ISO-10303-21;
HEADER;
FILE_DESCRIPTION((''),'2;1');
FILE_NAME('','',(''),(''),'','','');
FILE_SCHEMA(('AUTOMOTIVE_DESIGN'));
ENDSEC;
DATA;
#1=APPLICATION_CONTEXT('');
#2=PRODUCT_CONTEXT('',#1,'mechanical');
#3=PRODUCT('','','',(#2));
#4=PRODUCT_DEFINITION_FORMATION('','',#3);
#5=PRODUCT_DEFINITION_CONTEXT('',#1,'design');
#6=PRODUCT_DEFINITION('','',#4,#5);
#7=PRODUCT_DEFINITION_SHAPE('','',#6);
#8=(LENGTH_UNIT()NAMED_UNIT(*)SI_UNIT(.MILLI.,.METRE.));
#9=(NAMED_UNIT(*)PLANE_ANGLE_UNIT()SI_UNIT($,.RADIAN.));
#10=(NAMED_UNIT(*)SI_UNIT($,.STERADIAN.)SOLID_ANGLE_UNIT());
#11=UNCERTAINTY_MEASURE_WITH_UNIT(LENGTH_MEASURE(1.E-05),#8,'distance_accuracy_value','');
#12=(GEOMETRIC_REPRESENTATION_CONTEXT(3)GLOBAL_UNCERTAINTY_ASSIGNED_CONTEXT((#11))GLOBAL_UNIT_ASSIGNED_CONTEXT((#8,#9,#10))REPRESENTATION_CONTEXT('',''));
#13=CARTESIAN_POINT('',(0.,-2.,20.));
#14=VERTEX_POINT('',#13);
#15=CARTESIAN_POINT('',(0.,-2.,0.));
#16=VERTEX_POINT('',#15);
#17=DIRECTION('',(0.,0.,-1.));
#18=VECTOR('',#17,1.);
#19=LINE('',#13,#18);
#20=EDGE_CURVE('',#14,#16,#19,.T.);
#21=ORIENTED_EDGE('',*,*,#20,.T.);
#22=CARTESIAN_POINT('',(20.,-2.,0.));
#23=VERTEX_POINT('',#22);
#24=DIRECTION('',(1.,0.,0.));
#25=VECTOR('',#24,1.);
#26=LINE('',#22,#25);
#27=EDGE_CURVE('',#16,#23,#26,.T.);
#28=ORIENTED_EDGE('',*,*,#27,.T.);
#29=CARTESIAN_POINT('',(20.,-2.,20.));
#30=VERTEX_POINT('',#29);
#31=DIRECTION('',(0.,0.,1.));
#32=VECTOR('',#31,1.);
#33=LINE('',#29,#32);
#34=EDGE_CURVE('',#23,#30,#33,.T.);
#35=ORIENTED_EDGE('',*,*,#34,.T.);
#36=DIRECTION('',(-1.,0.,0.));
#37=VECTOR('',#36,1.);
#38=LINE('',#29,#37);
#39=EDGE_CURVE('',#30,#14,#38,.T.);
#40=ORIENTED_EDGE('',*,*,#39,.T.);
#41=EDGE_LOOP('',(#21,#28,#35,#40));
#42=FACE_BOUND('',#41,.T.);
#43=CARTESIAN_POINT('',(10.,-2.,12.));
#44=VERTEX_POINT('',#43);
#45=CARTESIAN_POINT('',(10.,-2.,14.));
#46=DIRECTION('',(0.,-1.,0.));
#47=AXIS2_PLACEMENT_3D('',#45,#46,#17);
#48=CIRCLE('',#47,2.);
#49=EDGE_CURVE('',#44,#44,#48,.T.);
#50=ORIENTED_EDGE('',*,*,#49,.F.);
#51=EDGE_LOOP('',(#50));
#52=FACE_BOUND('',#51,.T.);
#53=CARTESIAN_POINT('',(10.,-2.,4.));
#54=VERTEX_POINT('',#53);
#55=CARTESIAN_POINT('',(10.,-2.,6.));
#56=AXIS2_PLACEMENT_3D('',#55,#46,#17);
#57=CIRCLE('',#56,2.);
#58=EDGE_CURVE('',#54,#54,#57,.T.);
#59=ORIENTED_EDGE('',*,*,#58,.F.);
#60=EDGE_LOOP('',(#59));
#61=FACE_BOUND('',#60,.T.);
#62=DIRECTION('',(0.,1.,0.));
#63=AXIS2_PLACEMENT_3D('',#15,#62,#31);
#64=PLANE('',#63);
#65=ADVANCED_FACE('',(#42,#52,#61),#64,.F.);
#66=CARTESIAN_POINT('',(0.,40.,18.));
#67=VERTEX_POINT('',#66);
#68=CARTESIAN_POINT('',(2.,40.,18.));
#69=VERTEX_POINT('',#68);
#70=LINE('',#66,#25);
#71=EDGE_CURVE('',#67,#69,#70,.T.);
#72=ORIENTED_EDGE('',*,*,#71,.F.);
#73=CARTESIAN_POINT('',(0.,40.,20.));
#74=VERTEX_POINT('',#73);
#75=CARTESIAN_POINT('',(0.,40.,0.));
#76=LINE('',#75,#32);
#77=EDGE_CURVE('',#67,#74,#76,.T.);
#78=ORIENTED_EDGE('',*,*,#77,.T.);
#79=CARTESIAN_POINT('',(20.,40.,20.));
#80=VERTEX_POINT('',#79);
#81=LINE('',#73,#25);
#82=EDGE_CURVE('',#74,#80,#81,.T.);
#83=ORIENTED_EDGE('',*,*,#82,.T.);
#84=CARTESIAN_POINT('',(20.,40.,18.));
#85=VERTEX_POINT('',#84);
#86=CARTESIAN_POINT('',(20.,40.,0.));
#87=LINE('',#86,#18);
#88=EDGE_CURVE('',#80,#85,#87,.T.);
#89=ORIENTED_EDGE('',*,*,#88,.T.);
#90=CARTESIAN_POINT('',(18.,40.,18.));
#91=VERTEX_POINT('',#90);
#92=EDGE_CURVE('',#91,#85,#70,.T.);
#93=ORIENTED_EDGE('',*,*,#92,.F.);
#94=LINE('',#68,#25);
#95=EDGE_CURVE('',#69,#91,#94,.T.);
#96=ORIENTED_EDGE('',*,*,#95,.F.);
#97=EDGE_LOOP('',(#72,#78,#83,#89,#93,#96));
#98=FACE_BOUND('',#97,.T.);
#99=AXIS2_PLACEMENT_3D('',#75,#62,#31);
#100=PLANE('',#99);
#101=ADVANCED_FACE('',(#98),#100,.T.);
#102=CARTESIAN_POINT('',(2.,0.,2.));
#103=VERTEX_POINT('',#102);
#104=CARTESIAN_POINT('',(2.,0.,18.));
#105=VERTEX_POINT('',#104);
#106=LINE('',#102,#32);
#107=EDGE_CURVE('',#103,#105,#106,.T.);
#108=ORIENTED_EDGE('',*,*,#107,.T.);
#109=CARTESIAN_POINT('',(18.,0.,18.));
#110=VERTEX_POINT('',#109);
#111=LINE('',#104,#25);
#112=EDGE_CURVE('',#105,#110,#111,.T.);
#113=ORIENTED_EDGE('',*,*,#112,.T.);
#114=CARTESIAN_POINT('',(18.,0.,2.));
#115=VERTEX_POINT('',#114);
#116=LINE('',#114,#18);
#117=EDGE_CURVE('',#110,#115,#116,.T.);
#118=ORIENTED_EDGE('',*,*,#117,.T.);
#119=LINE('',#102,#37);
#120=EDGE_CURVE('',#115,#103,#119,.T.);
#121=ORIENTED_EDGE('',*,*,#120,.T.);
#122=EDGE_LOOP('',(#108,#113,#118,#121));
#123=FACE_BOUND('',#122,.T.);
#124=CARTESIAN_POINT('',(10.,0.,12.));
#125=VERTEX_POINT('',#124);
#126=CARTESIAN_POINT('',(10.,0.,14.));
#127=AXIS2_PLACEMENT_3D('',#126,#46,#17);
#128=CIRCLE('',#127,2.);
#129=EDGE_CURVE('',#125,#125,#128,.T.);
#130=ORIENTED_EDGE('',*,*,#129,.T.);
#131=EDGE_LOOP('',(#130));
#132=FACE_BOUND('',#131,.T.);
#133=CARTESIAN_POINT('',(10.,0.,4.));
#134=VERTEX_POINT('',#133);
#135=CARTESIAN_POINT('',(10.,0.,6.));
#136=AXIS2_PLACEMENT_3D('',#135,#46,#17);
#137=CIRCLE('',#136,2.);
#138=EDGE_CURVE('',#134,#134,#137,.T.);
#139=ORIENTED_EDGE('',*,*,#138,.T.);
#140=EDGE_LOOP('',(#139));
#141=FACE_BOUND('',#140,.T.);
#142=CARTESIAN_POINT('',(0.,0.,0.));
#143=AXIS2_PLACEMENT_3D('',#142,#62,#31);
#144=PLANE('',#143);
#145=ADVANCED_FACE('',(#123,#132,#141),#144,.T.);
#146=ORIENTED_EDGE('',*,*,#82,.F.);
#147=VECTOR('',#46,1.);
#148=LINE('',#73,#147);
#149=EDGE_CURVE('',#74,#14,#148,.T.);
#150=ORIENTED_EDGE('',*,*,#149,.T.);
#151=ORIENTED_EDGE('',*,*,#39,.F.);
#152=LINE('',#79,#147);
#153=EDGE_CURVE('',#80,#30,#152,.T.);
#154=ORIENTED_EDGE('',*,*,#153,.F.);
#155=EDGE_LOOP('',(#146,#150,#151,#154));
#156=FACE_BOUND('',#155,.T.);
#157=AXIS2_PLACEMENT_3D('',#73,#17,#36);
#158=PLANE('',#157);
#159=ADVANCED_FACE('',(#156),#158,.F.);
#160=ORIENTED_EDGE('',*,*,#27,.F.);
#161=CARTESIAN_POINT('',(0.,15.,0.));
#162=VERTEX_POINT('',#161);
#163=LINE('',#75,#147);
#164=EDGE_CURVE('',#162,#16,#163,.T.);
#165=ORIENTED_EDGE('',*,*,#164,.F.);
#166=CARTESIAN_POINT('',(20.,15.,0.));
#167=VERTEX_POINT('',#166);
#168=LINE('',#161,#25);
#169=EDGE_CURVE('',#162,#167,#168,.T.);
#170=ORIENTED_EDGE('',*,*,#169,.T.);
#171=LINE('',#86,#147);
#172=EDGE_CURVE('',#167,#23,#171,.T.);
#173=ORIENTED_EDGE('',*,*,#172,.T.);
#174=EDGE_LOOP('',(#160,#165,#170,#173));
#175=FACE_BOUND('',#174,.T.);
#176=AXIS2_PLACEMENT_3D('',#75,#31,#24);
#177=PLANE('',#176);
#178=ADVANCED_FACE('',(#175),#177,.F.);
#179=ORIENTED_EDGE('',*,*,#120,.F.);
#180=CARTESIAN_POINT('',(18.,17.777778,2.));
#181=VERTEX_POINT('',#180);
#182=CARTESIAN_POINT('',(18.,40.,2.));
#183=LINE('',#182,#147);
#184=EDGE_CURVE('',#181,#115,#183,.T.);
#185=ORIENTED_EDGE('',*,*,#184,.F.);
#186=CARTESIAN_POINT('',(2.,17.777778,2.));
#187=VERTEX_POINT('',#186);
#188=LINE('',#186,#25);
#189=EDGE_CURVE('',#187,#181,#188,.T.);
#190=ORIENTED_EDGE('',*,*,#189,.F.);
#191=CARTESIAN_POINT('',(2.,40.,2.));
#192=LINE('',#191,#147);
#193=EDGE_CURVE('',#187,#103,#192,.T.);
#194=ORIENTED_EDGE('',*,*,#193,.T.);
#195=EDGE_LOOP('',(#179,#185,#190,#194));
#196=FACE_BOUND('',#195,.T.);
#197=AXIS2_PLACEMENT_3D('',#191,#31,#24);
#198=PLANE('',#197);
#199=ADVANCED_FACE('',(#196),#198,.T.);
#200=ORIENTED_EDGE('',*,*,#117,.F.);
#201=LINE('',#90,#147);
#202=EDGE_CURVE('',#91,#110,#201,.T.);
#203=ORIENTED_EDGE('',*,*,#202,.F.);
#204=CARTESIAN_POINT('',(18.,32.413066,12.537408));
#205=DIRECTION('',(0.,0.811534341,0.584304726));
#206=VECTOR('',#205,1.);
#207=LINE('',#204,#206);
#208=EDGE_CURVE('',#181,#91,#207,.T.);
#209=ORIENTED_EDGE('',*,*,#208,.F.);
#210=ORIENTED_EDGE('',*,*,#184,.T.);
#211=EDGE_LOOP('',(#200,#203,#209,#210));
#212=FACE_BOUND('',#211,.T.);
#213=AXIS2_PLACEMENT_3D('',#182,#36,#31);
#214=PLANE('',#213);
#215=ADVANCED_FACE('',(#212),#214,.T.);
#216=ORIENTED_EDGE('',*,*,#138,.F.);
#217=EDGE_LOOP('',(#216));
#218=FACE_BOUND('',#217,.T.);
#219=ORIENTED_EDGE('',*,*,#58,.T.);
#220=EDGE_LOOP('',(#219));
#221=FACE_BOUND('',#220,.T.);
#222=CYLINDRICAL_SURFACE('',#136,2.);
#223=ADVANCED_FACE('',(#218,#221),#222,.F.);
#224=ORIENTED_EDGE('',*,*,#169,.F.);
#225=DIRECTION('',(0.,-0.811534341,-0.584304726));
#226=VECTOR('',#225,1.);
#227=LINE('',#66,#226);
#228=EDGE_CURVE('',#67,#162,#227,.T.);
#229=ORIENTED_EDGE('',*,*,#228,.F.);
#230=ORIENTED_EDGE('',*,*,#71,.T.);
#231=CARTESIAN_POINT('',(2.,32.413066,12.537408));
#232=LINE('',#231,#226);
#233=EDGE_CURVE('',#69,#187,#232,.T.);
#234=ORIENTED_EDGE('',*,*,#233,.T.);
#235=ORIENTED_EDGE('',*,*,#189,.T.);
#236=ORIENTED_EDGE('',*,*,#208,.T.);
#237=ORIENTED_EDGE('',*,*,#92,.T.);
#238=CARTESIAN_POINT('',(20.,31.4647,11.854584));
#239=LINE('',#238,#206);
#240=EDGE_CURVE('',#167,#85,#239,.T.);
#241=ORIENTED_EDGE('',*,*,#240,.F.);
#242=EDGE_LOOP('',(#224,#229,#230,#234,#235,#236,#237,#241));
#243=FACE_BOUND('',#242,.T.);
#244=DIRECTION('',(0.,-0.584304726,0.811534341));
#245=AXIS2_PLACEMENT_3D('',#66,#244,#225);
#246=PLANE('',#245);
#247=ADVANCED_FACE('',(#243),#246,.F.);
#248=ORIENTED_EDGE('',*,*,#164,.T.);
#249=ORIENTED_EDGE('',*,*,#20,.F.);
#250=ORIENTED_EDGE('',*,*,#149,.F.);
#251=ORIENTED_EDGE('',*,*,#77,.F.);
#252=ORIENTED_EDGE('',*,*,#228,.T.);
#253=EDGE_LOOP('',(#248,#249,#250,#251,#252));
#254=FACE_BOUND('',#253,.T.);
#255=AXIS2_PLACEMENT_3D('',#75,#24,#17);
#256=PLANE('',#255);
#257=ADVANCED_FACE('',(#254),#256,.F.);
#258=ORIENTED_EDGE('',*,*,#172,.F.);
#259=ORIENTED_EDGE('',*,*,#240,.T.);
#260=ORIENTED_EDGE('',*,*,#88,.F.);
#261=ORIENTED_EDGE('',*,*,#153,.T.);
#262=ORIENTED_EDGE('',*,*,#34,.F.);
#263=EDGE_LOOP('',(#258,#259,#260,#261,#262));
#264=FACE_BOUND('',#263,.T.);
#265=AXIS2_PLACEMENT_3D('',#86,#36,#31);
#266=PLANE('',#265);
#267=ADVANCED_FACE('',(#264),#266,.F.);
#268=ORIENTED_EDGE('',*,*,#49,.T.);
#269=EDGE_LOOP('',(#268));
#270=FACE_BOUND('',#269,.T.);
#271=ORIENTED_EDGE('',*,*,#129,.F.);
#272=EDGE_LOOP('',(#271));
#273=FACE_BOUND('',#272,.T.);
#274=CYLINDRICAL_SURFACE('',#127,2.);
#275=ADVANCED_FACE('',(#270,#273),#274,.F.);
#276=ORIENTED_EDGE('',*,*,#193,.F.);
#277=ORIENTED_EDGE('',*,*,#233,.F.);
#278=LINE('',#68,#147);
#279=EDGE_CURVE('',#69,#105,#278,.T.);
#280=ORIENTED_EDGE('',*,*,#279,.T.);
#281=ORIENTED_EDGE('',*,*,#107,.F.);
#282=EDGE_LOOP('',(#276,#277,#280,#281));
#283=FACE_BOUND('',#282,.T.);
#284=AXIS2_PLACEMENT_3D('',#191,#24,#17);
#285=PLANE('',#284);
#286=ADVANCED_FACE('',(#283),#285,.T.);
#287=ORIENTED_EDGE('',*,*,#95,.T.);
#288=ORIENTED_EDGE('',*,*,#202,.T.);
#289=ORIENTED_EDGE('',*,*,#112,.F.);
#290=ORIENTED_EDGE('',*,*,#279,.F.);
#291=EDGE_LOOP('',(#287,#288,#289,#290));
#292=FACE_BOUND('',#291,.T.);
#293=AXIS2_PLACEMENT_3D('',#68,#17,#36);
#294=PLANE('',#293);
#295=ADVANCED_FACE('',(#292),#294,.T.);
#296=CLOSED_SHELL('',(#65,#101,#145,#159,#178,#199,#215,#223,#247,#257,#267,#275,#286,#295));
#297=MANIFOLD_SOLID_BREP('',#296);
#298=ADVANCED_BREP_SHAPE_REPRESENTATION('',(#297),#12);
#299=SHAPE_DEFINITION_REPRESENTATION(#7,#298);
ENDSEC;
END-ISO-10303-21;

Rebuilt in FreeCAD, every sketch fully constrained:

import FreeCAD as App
import Part
import Sketcher

V = App.Vector
Q = App.Units.Quantity

doc = App.newDocument("Part")
body = doc.addObject("PartDesign::Body", "Body")

sketch1 = doc.addObject("Sketcher::SketchObject", "Sketch")
body.addObject(sketch1)
sketch1.AttachmentSupport = (doc.XZ_Plane, [""])
sketch1.MapMode = "FlatFace"
sketch1.addGeometry([
    Part.LineSegment(V(0, 0, 0), V(0, 20, 0)),
    Part.LineSegment(V(0, 20, 0), V(20, 20, 0)),
    Part.LineSegment(V(20, 20, 0), V(20, 0, 0)),
    Part.LineSegment(V(20, 0, 0), V(0, 0, 0)),
    Part.LineSegment(V(18, 18, 0), V(2, 18, 0)),
    Part.LineSegment(V(2, 18, 0), V(2, 2, 0)),
    Part.LineSegment(V(2, 2, 0), V(18, 2, 0)),
    Part.LineSegment(V(18, 2, 0), V(18, 18, 0)),
], False)
sketch1.addConstraint([
    Sketcher.Constraint("Coincident", 0, 2, 1, 1),
    Sketcher.Constraint("Coincident", 1, 2, 2, 1),
    Sketcher.Constraint("Coincident", 2, 2, 3, 1),
    Sketcher.Constraint("Coincident", 3, 2, 0, 1),
    Sketcher.Constraint("Coincident", 4, 2, 5, 1),
    Sketcher.Constraint("Coincident", 5, 2, 6, 1),
    Sketcher.Constraint("Coincident", 6, 2, 7, 1),
    Sketcher.Constraint("Coincident", 7, 2, 4, 1),
    Sketcher.Constraint("Vertical", 0),
    Sketcher.Constraint("Horizontal", 1),
    Sketcher.Constraint("Vertical", 2),
    Sketcher.Constraint("Horizontal", 3),
    Sketcher.Constraint("Horizontal", 4),
    Sketcher.Constraint("Vertical", 5),
    Sketcher.Constraint("Horizontal", 6),
    Sketcher.Constraint("Vertical", 7),
    Sketcher.Constraint("Coincident", 3, 2, -1, 1),
    Sketcher.Constraint("Equal", 3, 0),
    Sketcher.Constraint("Equal", 6, 5),
    Sketcher.Constraint("DistanceX", 1, 1, 1, 2, Q("20 mm")),
    Sketcher.Constraint("DistanceX", 4, 2, 4, 1, Q("16 mm")),
    Sketcher.Constraint("DistanceX", -1, 1, 4, 2, Q("2 mm")),
    Sketcher.Constraint("DistanceY", -1, 1, 4, 2, Q("18 mm")),
])
pad1 = doc.addObject("PartDesign::Pad", "Pad")
body.addObject(pad1)
pad1.Profile = sketch1
pad1.Length = 40
pad1.Reversed = True

sketch2 = doc.addObject("Sketcher::SketchObject", "Sketch001")
body.addObject(sketch2)
sketch2.AttachmentSupport = (doc.YZ_Plane, [""])
sketch2.MapMode = "FlatFace"
sketch2.AttachmentOffset = App.Placement(V(0, 0, 20), App.Rotation())
sketch2.addGeometry([
    Part.LineSegment(V(40, 18, 0), V(15, 0, 0)),
    Part.LineSegment(V(15, 0, 0), V(40, 0, 0)),
    Part.LineSegment(V(40, 0, 0), V(40, 18, 0)),
], False)
sketch2.addConstraint([
    Sketcher.Constraint("Coincident", 0, 2, 1, 1),
    Sketcher.Constraint("Coincident", 1, 2, 2, 1),
    Sketcher.Constraint("Coincident", 2, 2, 0, 1),
    Sketcher.Constraint("Horizontal", 1),
    Sketcher.Constraint("Vertical", 2),
    Sketcher.Constraint("PointOnObject", 0, 2, -1),
    Sketcher.Constraint("DistanceX", 1, 1, 1, 2, Q("25 mm")),
    Sketcher.Constraint("DistanceY", 2, 1, 2, 2, Q("18 mm")),
    Sketcher.Constraint("DistanceX", -1, 1, 0, 2, Q("15 mm")),
])
pocket1 = doc.addObject("PartDesign::Pocket", "Pocket")
body.addObject(pocket1)
pocket1.Profile = sketch2
pocket1.Type = "ThroughAll"
pocket1.Midplane = True

sketch3 = doc.addObject("Sketcher::SketchObject", "Sketch002")
body.addObject(sketch3)
sketch3.AttachmentSupport = (doc.XZ_Plane, [""])
sketch3.MapMode = "FlatFace"
sketch3.addGeometry([
    Part.LineSegment(V(0, 20, 0), V(0, 0, 0)),
    Part.LineSegment(V(0, 0, 0), V(20, 0, 0)),
    Part.LineSegment(V(20, 0, 0), V(20, 20, 0)),
    Part.LineSegment(V(20, 20, 0), V(0, 20, 0)),
], False)
sketch3.addConstraint([
    Sketcher.Constraint("Coincident", 0, 2, 1, 1),
    Sketcher.Constraint("Coincident", 1, 2, 2, 1),
    Sketcher.Constraint("Coincident", 2, 2, 3, 1),
    Sketcher.Constraint("Coincident", 3, 2, 0, 1),
    Sketcher.Constraint("Vertical", 0),
    Sketcher.Constraint("Horizontal", 1),
    Sketcher.Constraint("Vertical", 2),
    Sketcher.Constraint("Horizontal", 3),
    Sketcher.Constraint("Coincident", 0, 2, -1, 1),
    Sketcher.Constraint("Equal", 3, 0),
    Sketcher.Constraint("DistanceX", 1, 1, 1, 2, Q("20 mm")),
])
pad2 = doc.addObject("PartDesign::Pad", "Pad001")
body.addObject(pad2)
pad2.Profile = sketch3
pad2.Length = 2

sketch4 = doc.addObject("Sketcher::SketchObject", "Sketch003")
body.addObject(sketch4)
sketch4.AttachmentSupport = (doc.XZ_Plane, [""])
sketch4.MapMode = "FlatFace"
sketch4.AttachmentOffset = App.Placement(V(0, 0, 2), App.Rotation())
sketch4.addGeometry([
    Part.Circle(V(10, 14, 0), V(0, 0, 1), 2),
    Part.Circle(V(10, 6, 0), V(0, 0, 1), 2),
], False)
sketch4.addConstraint([
    Sketcher.Constraint("Equal", 0, 1),
    Sketcher.Constraint("Vertical", 0, 3, 1, 3),
    Sketcher.Constraint("Diameter", 0, Q("4 mm")),
    Sketcher.Constraint("DistanceX", -1, 1, 0, 3, Q("10 mm")),
    Sketcher.Constraint("DistanceY", -1, 1, 0, 3, Q("14 mm")),
    Sketcher.Constraint("DistanceY", -1, 1, 1, 3, Q("6 mm")),
])
pocket2 = doc.addObject("PartDesign::Pocket", "Pocket001")
body.addObject(pocket2)
pocket2.Profile = sketch4
pocket2.Length = 2

doc.recompute()
